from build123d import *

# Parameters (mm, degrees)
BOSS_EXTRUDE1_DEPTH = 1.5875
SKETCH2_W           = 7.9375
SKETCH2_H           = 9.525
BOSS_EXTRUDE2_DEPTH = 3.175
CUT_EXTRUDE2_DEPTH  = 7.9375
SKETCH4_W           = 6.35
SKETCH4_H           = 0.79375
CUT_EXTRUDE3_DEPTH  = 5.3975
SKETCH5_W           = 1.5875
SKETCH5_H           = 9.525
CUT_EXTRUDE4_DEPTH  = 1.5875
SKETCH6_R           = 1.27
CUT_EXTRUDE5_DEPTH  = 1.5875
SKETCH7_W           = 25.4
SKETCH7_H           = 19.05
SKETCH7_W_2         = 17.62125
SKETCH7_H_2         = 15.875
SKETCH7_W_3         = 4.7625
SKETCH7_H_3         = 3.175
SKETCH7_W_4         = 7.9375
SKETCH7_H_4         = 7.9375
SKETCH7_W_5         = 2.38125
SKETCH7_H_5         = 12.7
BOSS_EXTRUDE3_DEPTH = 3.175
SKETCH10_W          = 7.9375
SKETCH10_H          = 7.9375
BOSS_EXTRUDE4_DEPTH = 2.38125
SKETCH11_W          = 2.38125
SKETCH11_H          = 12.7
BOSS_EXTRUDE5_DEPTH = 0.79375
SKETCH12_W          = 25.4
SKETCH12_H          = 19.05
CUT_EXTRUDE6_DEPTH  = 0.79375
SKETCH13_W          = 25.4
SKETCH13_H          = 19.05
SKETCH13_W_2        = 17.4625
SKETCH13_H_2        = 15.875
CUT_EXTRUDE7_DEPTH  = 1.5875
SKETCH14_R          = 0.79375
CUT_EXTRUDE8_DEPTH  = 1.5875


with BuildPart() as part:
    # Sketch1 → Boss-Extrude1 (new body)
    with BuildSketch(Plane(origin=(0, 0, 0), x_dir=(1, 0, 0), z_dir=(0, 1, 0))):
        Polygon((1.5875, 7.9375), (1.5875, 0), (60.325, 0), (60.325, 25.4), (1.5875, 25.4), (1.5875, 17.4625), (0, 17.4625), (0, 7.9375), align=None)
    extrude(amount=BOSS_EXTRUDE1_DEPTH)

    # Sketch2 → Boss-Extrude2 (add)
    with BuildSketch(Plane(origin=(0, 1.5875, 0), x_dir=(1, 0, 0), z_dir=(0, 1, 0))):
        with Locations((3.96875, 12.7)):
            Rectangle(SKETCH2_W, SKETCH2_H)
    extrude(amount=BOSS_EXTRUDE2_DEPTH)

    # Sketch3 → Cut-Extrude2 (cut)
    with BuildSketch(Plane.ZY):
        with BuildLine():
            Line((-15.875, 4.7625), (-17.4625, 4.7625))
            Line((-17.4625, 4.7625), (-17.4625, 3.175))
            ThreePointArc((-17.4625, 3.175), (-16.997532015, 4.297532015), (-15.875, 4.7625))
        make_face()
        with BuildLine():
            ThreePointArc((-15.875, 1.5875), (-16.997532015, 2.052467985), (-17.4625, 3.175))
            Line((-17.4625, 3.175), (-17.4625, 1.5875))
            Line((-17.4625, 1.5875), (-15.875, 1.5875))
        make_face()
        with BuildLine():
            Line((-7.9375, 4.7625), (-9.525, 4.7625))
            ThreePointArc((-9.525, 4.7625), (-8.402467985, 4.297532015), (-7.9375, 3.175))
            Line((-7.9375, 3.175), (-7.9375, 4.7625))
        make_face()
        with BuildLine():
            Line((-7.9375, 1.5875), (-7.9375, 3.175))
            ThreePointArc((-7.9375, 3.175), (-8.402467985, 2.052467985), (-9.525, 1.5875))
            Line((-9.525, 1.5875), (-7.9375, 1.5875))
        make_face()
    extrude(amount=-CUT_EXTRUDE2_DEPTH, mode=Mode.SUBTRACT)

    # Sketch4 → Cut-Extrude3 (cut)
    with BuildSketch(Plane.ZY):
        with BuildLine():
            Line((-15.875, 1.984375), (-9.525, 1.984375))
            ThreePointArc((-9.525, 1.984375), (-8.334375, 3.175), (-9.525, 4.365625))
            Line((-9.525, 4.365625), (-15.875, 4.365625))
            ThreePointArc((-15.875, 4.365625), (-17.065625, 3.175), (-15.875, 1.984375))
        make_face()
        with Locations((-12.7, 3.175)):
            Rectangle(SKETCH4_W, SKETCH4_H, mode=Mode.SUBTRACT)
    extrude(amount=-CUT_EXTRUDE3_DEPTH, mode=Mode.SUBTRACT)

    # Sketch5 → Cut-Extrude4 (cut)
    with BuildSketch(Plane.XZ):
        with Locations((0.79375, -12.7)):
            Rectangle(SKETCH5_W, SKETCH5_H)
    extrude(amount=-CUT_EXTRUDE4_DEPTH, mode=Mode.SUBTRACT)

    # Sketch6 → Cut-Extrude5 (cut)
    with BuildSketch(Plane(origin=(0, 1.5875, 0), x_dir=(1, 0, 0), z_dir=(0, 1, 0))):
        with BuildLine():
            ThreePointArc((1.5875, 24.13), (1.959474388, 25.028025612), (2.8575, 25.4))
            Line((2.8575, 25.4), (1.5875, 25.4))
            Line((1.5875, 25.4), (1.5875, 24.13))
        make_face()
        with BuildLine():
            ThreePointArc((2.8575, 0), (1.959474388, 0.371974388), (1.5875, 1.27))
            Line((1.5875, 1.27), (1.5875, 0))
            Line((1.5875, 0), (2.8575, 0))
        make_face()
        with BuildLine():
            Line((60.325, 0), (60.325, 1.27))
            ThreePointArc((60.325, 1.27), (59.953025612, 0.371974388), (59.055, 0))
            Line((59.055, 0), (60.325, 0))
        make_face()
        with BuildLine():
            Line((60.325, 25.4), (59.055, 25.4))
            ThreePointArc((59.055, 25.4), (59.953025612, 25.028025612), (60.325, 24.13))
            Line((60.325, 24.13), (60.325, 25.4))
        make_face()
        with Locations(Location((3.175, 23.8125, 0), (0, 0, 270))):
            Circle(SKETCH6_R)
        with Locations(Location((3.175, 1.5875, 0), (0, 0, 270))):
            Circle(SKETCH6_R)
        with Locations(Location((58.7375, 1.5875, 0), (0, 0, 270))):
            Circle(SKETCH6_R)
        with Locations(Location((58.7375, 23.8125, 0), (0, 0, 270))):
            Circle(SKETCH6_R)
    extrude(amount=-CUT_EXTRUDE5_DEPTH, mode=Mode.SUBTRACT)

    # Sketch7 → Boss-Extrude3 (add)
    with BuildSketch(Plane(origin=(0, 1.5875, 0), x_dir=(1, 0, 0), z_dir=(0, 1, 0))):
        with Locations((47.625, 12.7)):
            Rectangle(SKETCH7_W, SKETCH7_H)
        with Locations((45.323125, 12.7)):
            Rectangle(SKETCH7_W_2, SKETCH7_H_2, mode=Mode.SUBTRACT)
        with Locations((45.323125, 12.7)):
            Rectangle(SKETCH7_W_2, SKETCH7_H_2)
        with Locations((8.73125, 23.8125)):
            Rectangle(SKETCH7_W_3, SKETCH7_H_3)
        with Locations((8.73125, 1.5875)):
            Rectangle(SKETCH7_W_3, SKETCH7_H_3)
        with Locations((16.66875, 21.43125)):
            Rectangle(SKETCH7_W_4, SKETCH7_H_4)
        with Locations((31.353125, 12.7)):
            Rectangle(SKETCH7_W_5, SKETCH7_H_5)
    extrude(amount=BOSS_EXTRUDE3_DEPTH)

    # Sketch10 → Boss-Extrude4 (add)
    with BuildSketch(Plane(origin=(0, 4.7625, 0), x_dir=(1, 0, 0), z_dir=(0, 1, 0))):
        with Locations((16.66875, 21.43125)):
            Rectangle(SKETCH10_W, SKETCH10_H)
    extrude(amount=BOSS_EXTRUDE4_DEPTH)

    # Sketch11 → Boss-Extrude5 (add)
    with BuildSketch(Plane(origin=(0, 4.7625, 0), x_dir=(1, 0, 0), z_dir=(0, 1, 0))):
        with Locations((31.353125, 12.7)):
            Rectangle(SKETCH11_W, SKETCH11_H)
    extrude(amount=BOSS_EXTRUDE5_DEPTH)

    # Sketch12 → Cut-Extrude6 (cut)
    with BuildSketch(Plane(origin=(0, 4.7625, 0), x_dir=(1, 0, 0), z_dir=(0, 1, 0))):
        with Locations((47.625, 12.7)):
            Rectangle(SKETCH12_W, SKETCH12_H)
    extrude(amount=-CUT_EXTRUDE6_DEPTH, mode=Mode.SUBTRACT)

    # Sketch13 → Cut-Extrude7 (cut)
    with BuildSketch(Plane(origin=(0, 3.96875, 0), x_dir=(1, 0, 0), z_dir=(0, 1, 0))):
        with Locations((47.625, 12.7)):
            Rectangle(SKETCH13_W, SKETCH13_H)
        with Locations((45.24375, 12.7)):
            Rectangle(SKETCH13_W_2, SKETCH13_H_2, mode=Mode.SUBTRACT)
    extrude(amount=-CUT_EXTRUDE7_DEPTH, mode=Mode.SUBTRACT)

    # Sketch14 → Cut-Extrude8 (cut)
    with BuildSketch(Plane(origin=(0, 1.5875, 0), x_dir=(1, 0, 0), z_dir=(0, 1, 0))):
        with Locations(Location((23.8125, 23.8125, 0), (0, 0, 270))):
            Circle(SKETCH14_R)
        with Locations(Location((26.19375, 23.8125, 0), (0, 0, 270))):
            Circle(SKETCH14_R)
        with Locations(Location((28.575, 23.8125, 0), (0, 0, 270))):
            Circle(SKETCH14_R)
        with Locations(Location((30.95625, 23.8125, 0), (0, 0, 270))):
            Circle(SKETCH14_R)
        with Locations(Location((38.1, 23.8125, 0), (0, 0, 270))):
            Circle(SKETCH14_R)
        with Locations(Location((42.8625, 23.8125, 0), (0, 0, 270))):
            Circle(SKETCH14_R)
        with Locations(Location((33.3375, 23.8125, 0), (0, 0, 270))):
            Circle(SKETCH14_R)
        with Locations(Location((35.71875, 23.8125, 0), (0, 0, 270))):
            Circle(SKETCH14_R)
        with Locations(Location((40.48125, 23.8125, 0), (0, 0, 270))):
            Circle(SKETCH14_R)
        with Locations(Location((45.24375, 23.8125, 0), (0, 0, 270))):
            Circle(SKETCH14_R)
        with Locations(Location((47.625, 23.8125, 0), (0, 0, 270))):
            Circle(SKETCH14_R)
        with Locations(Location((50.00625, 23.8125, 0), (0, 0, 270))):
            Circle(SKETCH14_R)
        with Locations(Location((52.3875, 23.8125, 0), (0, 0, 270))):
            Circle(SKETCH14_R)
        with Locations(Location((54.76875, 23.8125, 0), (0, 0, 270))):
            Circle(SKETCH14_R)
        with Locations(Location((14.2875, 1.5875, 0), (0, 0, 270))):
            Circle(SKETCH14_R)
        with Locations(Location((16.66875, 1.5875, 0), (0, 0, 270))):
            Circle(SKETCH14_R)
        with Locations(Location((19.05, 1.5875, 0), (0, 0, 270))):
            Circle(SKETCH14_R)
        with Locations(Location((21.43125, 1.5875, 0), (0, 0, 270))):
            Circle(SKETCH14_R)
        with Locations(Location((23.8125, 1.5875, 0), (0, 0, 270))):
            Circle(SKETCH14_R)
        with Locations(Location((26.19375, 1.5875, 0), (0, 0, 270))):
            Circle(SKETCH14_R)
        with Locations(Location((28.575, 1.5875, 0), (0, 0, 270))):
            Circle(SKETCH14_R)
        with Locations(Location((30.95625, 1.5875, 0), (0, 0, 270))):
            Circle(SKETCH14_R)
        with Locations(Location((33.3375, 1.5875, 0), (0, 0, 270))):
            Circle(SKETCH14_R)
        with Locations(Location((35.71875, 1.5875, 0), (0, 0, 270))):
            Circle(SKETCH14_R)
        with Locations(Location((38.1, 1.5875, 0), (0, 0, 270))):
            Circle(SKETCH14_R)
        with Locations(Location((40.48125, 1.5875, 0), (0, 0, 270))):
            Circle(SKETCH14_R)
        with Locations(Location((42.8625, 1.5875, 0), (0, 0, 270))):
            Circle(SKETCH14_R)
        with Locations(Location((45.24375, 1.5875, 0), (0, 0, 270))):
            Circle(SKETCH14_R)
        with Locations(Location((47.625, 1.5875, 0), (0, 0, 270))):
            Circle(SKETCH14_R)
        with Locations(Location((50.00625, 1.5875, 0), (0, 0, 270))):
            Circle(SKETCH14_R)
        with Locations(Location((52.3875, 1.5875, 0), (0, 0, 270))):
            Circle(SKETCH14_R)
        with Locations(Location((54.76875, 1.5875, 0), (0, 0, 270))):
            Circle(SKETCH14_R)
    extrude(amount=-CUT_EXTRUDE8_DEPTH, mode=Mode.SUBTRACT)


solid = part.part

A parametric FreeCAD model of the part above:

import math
import FreeCAD as App
import Part
import Sketcher
Q = App.Units.Quantity

doc = App.newDocument("Part")
body = doc.addObject("PartDesign::Body", "Body")

sketch1 = body.newObject("Sketcher::SketchObject", "Sketch")
sketch1.AttachmentSupport = (doc.getObject("XZ_Plane"), [""])
sketch1.MapMode = "FlatFace"
sketch1.addGeometry([
    Part.LineSegment(App.Vector(1.6, -7.9, 0), App.Vector(1.6, 0, 0)),
    Part.LineSegment(App.Vector(1.6, 0, 0), App.Vector(60.3, 0, 0)),
    Part.LineSegment(App.Vector(60.3, 0, 0), App.Vector(60.3, -25.4, 0)),
    Part.LineSegment(App.Vector(60.3, -25.4, 0), App.Vector(1.6, -25.4, 0)),
    Part.LineSegment(App.Vector(1.6, -25.4, 0), App.Vector(1.6, -17.5, 0)),
    Part.LineSegment(App.Vector(1.6, -17.5, 0), App.Vector(0, -17.5, 0)),
    Part.LineSegment(App.Vector(0, -17.5, 0), App.Vector(0, -7.9, 0)),
    Part.LineSegment(App.Vector(0, -7.9, 0), App.Vector(1.6, -7.9, 0)),
], False)
sketch1.addConstraint([
    Sketcher.Constraint("Coincident", 0, 2, 1, 1),
    Sketcher.Constraint("Coincident", 1, 2, 2, 1),
    Sketcher.Constraint("Coincident", 2, 2, 3, 1),
    Sketcher.Constraint("Coincident", 3, 2, 4, 1),
    Sketcher.Constraint("Coincident", 4, 2, 5, 1),
    Sketcher.Constraint("Coincident", 5, 2, 6, 1),
    Sketcher.Constraint("Coincident", 6, 2, 7, 1),
    Sketcher.Constraint("Coincident", 7, 2, 0, 1),
    Sketcher.Constraint("Vertical", 0),
    Sketcher.Constraint("Horizontal", 1),
    Sketcher.Constraint("Vertical", 2),
    Sketcher.Constraint("Horizontal", 3),
    Sketcher.Constraint("Vertical", 4),
    Sketcher.Constraint("Horizontal", 5),
    Sketcher.Constraint("Vertical", 6),
    Sketcher.Constraint("Horizontal", 7),
    Sketcher.Constraint("PointOnObject", 0, 2, -1),
    Sketcher.Constraint("PointOnObject", 5, 2, -2),
    Sketcher.Constraint("Vertical", 0, 2, 3, 2),
    Sketcher.Constraint("Equal", 0, 4),
    Sketcher.Constraint("DistanceY", 2, 2, 2, 1, Q("1 in")),
    Sketcher.Constraint("DistanceX", 1, 1, 1, 2, Q("2.3125 in")),
    Sketcher.Constraint("DistanceX", 5, 2, 5, 1, Q("0.0625 in")),
    Sketcher.Constraint("DistanceY", 0, 1, 0, 2, Q("0.3125 in")),
])
pad1 = body.newObject("PartDesign::Pad", "Pad")
pad1.Profile = sketch1
pad1.Length = Q("0.0625 in")
pad1.Reversed = True

sketch2 = body.newObject("Sketcher::SketchObject", "Sketch001")
sketch2.AttachmentSupport = (doc.getObject("XZ_Plane"), [""])
sketch2.MapMode = "FlatFace"
sketch2.AttachmentOffset = App.Placement(App.Vector(0, 0, -0.0625 * 25.4), App.Rotation())
sketch2.addGeometry([
    Part.LineSegment(App.Vector(0, -17, 0), App.Vector(0, -8, 0)),
    Part.LineSegment(App.Vector(0, -8, 0), App.Vector(8, -8, 0)),
    Part.LineSegment(App.Vector(8, -8, 0), App.Vector(8, -17, 0)),
    Part.LineSegment(App.Vector(8, -17, 0), App.Vector(0, -17, 0)),
], False)
sketch2.addConstraint([
    Sketcher.Constraint("Coincident", 0, 2, 1, 1),
    Sketcher.Constraint("Coincident", 1, 2, 2, 1),
    Sketcher.Constraint("Coincident", 2, 2, 3, 1),
    Sketcher.Constraint("Coincident", 3, 2, 0, 1),
    Sketcher.Constraint("Vertical", 0),
    Sketcher.Constraint("Horizontal", 1),
    Sketcher.Constraint("Vertical", 2),
    Sketcher.Constraint("Horizontal", 3),
    Sketcher.Constraint("PointOnObject", 0, 2, -2),
    Sketcher.Constraint("DistanceX", 1, 1, 1, 2, Q("0.3125 in")),
    Sketcher.Constraint("DistanceY", 0, 1, 0, 2, Q("0.375 in")),
    Sketcher.Constraint("DistanceY", 0, 2, -1, 1, Q("0.3125 in")),
])
pad2 = body.newObject("PartDesign::Pad", "Pad001")
pad2.Profile = sketch2
pad2.Length = Q("0.125 in")
pad2.Reversed = True

sketch3 = body.newObject("Sketcher::SketchObject", "Sketch002")
sketch3.AttachmentSupport = (doc.getObject("YZ_Plane"), [""])
sketch3.MapMode = "FlatFace"
sketch3.addGeometry([
    Part.LineSegment(App.Vector(4.8, -15.9, 0), App.Vector(4.8, -17.5, 0)),
    Part.LineSegment(App.Vector(4.8, -17.5, 0), App.Vector(3.2, -17.5, 0)),
    Part.ArcOfCircle(Part.Circle(App.Vector(3.2, -15.9, 0), App.Vector(0, 0, 1), 1.6), math.radians(-90), math.radians(0)),
    Part.ArcOfCircle(Part.Circle(App.Vector(3.2, -15.9, 0), App.Vector(0, 0, 1), 1.6), math.radians(180), math.radians(270)),
    Part.LineSegment(App.Vector(3.2, -17.5, 0), App.Vector(1.6, -17.5, 0)),
    Part.LineSegment(App.Vector(1.6, -17.5, 0), App.Vector(1.6, -15.9, 0)),
    Part.LineSegment(App.Vector(4.8, -7.9, 0), App.Vector(4.8, -9.5, 0)),
    Part.ArcOfCircle(Part.Circle(App.Vector(3.2, -9.5, 0), App.Vector(0, 0, 1), 1.6), math.radians(0), math.radians(90)),
    Part.LineSegment(App.Vector(3.2, -7.9, 0), App.Vector(4.8, -7.9, 0)),
    Part.LineSegment(App.Vector(1.6, -7.9, 0), App.Vector(3.2, -7.9, 0)),
    Part.ArcOfCircle(Part.Circle(App.Vector(3.2, -9.5, 0), App.Vector(0, 0, 1), 1.6), math.radians(90), math.radians(180)),
    Part.LineSegment(App.Vector(1.6, -9.5, 0), App.Vector(1.6, -7.9, 0)),
], False)
sketch3.addConstraint([
    Sketcher.Constraint("Coincident", 0, 2, 1, 1),
    Sketcher.Constraint("Tangent", 1, 2, 2, 1),
    Sketcher.Constraint("Tangent", 2, 2, 0, 1),
    Sketcher.Constraint("Tangent", 3, 2, 4, 1),
    Sketcher.Constraint("Coincident", 4, 2, 5, 1),
    Sketcher.Constraint("Tangent", 5, 2, 3, 1),
    Sketcher.Constraint("Tangent", 6, 2, 7, 1),
    Sketcher.Constraint("Tangent", 7, 2, 8, 1),
    Sketcher.Constraint("Coincident", 8, 2, 6, 1),
    Sketcher.Constraint("Tangent", 9, 2, 10, 1),
    Sketcher.Constraint("Tangent", 10, 2, 11, 1),
    Sketcher.Constraint("Coincident", 11, 2, 9, 1),
    Sketcher.Constraint("Vertical", 0),
    Sketcher.Constraint("Horizontal", 1),
    Sketcher.Constraint("Horizontal", 4),
    Sketcher.Constraint("Vertical", 5),
    Sketcher.Constraint("Vertical", 6),
    Sketcher.Constraint("Horizontal", 8),
    Sketcher.Constraint("Horizontal", 9),
    Sketcher.Constraint("Vertical", 11),
    Sketcher.Constraint("Coincident", 3, 3, 2, 3),
    Sketcher.Constraint("Coincident", 10, 3, 7, 3),
    Sketcher.Constraint("Equal", 2, 3),
    Sketcher.Constraint("Equal", 3, 7),
    Sketcher.Constraint("Equal", 7, 10),
    Sketcher.Constraint("Vertical", 3, 3, 7, 3),
    Sketcher.Constraint("Radius", 2, Q("0.0625 in")),
    Sketcher.Constraint("DistanceY", 2, 3, 7, 3, Q("0.25 in")),
    Sketcher.Constraint("DistanceX", -1, 1, 2, 3, Q("0.125 in")),
    Sketcher.Constraint("DistanceY", 2, 3, -1, 1, Q("0.625 in")),
])
pocket1 = body.newObject("PartDesign::Pocket", "Pocket")
pocket1.Profile = sketch3
pocket1.Length = Q("0.3125 in")
pocket1.Reversed = True

sketch4 = body.newObject("Sketcher::SketchObject", "Sketch003")
sketch4.AttachmentSupport = (doc.getObject("YZ_Plane"), [""])
sketch4.MapMode = "FlatFace"
sketch4.addGeometry([
    Part.LineSegment(App.Vector(2, -15.9, 0), App.Vector(2, -9.5, 0)),
    Part.ArcOfCircle(Part.Circle(App.Vector(3.2, -9.5, 0), App.Vector(0, 0, 1), 1.2), math.radians(0), math.radians(180)),
    Part.LineSegment(App.Vector(4.4, -9.5, 0), App.Vector(4.4, -15.9, 0)),
    Part.ArcOfCircle(Part.Circle(App.Vector(3.2, -15.9, 0), App.Vector(0, 0, 1), 1.2), math.radians(180), math.radians(360)),
    Part.LineSegment(App.Vector(2.8, -9.5, 0), App.Vector(2.8, -15.9, 0)),
    Part.LineSegment(App.Vector(2.8, -15.9, 0), App.Vector(3.6, -15.9, 0)),
    Part.LineSegment(App.Vector(3.6, -15.9, 0), App.Vector(3.6, -9.5, 0)),
    Part.LineSegment(App.Vector(3.6, -9.5, 0), App.Vector(2.8, -9.5, 0)),
], False)
sketch4.addConstraint([
    Sketcher.Constraint("Tangent", 0, 2, 1, 2),
    Sketcher.Constraint("Tangent", 1, 1, 2, 1),
    Sketcher.Constraint("Tangent", 2, 2, 3, 2),
    Sketcher.Constraint("Tangent", 3, 1, 0, 1),
    Sketcher.Constraint("Coincident", 4, 2, 5, 1),
    Sketcher.Constraint("Coincident", 5, 2, 6, 1),
    Sketcher.Constraint("Coincident", 6, 2, 7, 1),
    Sketcher.Constraint("Coincident", 7, 2, 4, 1),
    Sketcher.Constraint("Vertical", 0),
    Sketcher.Constraint("Vertical", 2),
    Sketcher.Constraint("Vertical", 4),
    Sketcher.Constraint("Horizontal", 5),
    Sketcher.Constraint("Vertical", 6),
    Sketcher.Constraint("Horizontal", 7),
    Sketcher.Constraint("Horizontal", 3, 1, 4, 2),
    Sketcher.Constraint("Horizontal", 1, 1, 6, 2),
    Sketcher.Constraint("Radius", 1, Q("0.046875 in")),
    Sketcher.Constraint("DistanceY", 0, 1, 0, 2, Q("0.25 in")),
    Sketcher.Constraint("DistanceX", 5, 1, 5, 2, Q("0.03125 in")),
    Sketcher.Constraint("DistanceX", -1, 1, 1, 3, Q("0.125 in")),
    Sketcher.Constraint("DistanceY", 1, 3, -1, 1, Q("0.375 in")),
    Sketcher.Constraint("DistanceX", -1, 1, 4, 2, Q("0.109375 in")),
])
pocket2 = body.newObject("PartDesign::Pocket", "Pocket001")
pocket2.Profile = sketch4
pocket2.Length = Q("0.2125 in")
pocket2.Reversed = True

sketch5 = body.newObject("Sketcher::SketchObject", "Sketch004")
sketch5.AttachmentSupport = (doc.getObject("XZ_Plane"), [""])
sketch5.MapMode = "FlatFace"
sketch5.addGeometry([
    Part.LineSegment(App.Vector(0, -7.9, 0), App.Vector(0, -17.5, 0)),
    Part.LineSegment(App.Vector(0, -17.5, 0), App.Vector(1.6, -17.5, 0)),
    Part.LineSegment(App.Vector(1.6, -17.5, 0), App.Vector(1.6, -7.9, 0)),
    Part.LineSegment(App.Vector(1.6, -7.9, 0), App.Vector(0, -7.9, 0)),
], False)
sketch5.addConstraint([
    Sketcher.Constraint("Coincident", 0, 2, 1, 1),
    Sketcher.Constraint("Coincident", 1, 2, 2, 1),
    Sketcher.Constraint("Coincident", 2, 2, 3, 1),
    Sketcher.Constraint("Coincident", 3, 2, 0, 1),
    Sketcher.Constraint("Vertical", 0),
    Sketcher.Constraint("Horizontal", 1),
    Sketcher.Constraint("Vertical", 2),
    Sketcher.Constraint("Horizontal", 3),
    Sketcher.Constraint("PointOnObject", 0, 2, -2),
    Sketcher.Constraint("DistanceX", 1, 1, 1, 2, Q("0.0625 in")),
    Sketcher.Constraint("DistanceY", 0, 2, 0, 1, Q("0.375 in")),
    Sketcher.Constraint("DistanceY", 0, 2, -1, 1, Q("0.6875 in")),
])
pocket3 = body.newObject("PartDesign::Pocket", "Pocket002")
pocket3.Profile = sketch5
pocket3.Length = Q("0.0625 in")

sketch6 = body.newObject("Sketcher::SketchObject", "Sketch005")
sketch6.AttachmentSupport = (doc.getObject("XZ_Plane"), [""])
sketch6.MapMode = "FlatFace"
sketch6.AttachmentOffset = App.Placement(App.Vector(0, 0, -0.0625 * 25.4), App.Rotation())
sketch6.addGeometry([
    Part.ArcOfCircle(Part.Circle(App.Vector(2.9, -24.1, 0), App.Vector(0, 0, 1), 1.3), math.radians(180), math.radians(270)),
    Part.LineSegment(App.Vector(2.9, -25.4, 0), App.Vector(1.6, -25.4, 0)),
    Part.LineSegment(App.Vector(1.6, -25.4, 0), App.Vector(1.6, -24.1, 0)),
    Part.ArcOfCircle(Part.Circle(App.Vector(2.9, -1.3, 0), App.Vector(0, 0, 1), 1.3), math.radians(90), math.radians(180)),
    Part.LineSegment(App.Vector(1.6, -1.3, 0), App.Vector(1.6, 0, 0)),
    Part.LineSegment(App.Vector(1.6, 0, 0), App.Vector(2.9, 0, 0)),
    Part.LineSegment(App.Vector(60.3, 0, 0), App.Vector(60.3, -1.3, 0)),
    Part.ArcOfCircle(Part.Circle(App.Vector(59.1, -1.3, 0), App.Vector(0, 0, 1), 1.3), math.radians(0), math.radians(90)),
    Part.LineSegment(App.Vector(59.1, 0, 0), App.Vector(60.3, 0, 0)),
    Part.LineSegment(App.Vector(60.3, -25.4, 0), App.Vector(59.1, -25.4, 0)),
    Part.ArcOfCircle(Part.Circle(App.Vector(59.1, -24.1, 0), App.Vector(0, 0, 1), 1.3), math.radians(-90), math.radians(0)),
    Part.LineSegment(App.Vector(60.3, -24.1, 0), App.Vector(60.3, -25.4, 0)),
    Part.Circle(App.Vector(3.2, -23.8, 0), App.Vector(0, 0, 1), 1.3),
    Part.Circle(App.Vector(3.2, -1.6, 0), App.Vector(0, 0, 1), 1.3),
    Part.Circle(App.Vector(58.7, -1.6, 0), App.Vector(0, 0, 1), 1.3),
    Part.Circle(App.Vector(58.7, -23.8, 0), App.Vector(0, 0, 1), 1.3),
], False)
sketch6.addConstraint([
    Sketcher.Constraint("Tangent", 0, 2, 1, 1),
    Sketcher.Constraint("Coincident", 1, 2, 2, 1),
    Sketcher.Constraint("Tangent", 2, 2, 0, 1),
    Sketcher.Constraint("Tangent", 3, 2, 4, 1),
    Sketcher.Constraint("Coincident", 4, 2, 5, 1),
    Sketcher.Constraint("Tangent", 5, 2, 3, 1),
    Sketcher.Constraint("Tangent", 6, 2, 7, 1),
    Sketcher.Constraint("Tangent", 7, 2, 8, 1),
    Sketcher.Constraint("Coincident", 8, 2, 6, 1),
    Sketcher.Constraint("Tangent", 9, 2, 10, 1),
    Sketcher.Constraint("Tangent", 10, 2, 11, 1),
    Sketcher.Constraint("Coincident", 11, 2, 9, 1),
    Sketcher.Constraint("Horizontal", 1),
    Sketcher.Constraint("Vertical", 2),
    Sketcher.Constraint("Vertical", 4),
    Sketcher.Constraint("Horizontal", 5),
    Sketcher.Constraint("Vertical", 6),
    Sketcher.Constraint("Horizontal", 8),
    Sketcher.Constraint("Horizontal", 9),
    Sketcher.Constraint("Vertical", 11),
    Sketcher.Constraint("Equal", 0, 3),
    Sketcher.Constraint("Equal", 3, 7),
    Sketcher.Constraint("Equal", 7, 10),
    Sketcher.Constraint("Equal", 10, 12),
    Sketcher.Constraint("Equal", 12, 13),
    Sketcher.Constraint("Equal", 13, 14),
    Sketcher.Constraint("Equal", 14, 15),
    Sketcher.Constraint("PointOnObject", 4, 2, -1),
    Sketcher.Constraint("PointOnObject", 7, 2, -1),
    Sketcher.Constraint("Horizontal", 0, 3, 10, 3),
    Sketcher.Constraint("Horizontal", 13, 3, 14, 3),
    Sketcher.Constraint("Horizontal", 12, 3, 15, 3),
    Sketcher.Constraint("Vertical", 0, 3, 3, 3),
    Sketcher.Constraint("Vertical", 7, 3, 10, 3),
    Sketcher.Constraint("Vertical", 12, 3, 13, 3),
    Sketcher.Constraint("Vertical", 14, 3, 15, 3),
    Sketcher.Constraint("Diameter", 12, Q("0.1 in")),
    Sketcher.Constraint("DistanceY", 0, 2, -1, 1, Q("1 in")),
    Sketcher.Constraint("DistanceX", 12, 3, 10, 3, Q("2.2 in")),
    Sketcher.Constraint("DistanceX", 3, 3, 14, 3, Q("2.2 in")),
    Sketcher.Constraint("DistanceX", -1, 1, 7, 3, Q("2.325 in")),
    Sketcher.Constraint("DistanceY", 12, 3, -1, 1, Q("0.9375 in")),
    Sketcher.Constraint("DistanceY", 13, 3, -1, 1, Q("0.0625 in")),
    Sketcher.Constraint("DistanceX", -1, 1, 14, 3, Q("2.3125 in")),
])
pocket4 = body.newObject("PartDesign::Pocket", "Pocket003")
pocket4.Profile = sketch6
pocket4.Length = Q("0.0625 in")
pocket4.Reversed = True

sketch7 = body.newObject("Sketcher::SketchObject", "Sketch006")
sketch7.AttachmentSupport = (doc.getObject("XZ_Plane"), [""])
sketch7.MapMode = "FlatFace"
sketch7.AttachmentOffset = App.Placement(App.Vector(0, 0, -0.0625 * 25.4), App.Rotation())
sketch7.addGeometry([
    Part.LineSegment(App.Vector(34.9, -22.2, 0), App.Vector(34.9, -3.2, 0)),
    Part.LineSegment(App.Vector(34.9, -3.2, 0), App.Vector(60.3, -3.2, 0)),
    Part.LineSegment(App.Vector(60.3, -3.2, 0), App.Vector(60.3, -22.2, 0)),
    Part.LineSegment(App.Vector(60.3, -22.2, 0), App.Vector(34.9, -22.2, 0)),
    Part.LineSegment(App.Vector(6.3, -25.4, 0), App.Vector(6.3, -22.2, 0)),
    Part.LineSegment(App.Vector(6.3, -22.2, 0), App.Vector(11.1, -22.2, 0)),
    Part.LineSegment(App.Vector(11.1, -22.2, 0), App.Vector(11.1, -25.4, 0)),
    Part.LineSegment(App.Vector(11.1, -25.4, 0), App.Vector(6.3, -25.4, 0)),
    Part.LineSegment(App.Vector(6.3, -3.2, 0), App.Vector(6.3, 0, 0)),
    Part.LineSegment(App.Vector(6.3, 0, 0), App.Vector(11.1, 0, 0)),
    Part.LineSegment(App.Vector(11.1, 0, 0), App.Vector(11.1, -3.2, 0)),
    Part.LineSegment(App.Vector(11.1, -3.2, 0), App.Vector(6.3, -3.2, 0)),
    Part.LineSegment(App.Vector(12.7, -25.4, 0), App.Vector(12.7, -17.5, 0)),
    Part.LineSegment(App.Vector(12.7, -17.5, 0), App.Vector(20.6, -17.5, 0)),
    Part.LineSegment(App.Vector(20.6, -17.5, 0), App.Vector(20.6, -25.4, 0)),
    Part.LineSegment(App.Vector(20.6, -25.4, 0), App.Vector(12.7, -25.4, 0)),
    Part.LineSegment(App.Vector(30.2, -19.1, 0), App.Vector(30.2, -6.3, 0)),
    Part.LineSegment(App.Vector(30.2, -6.3, 0), App.Vector(32.5, -6.3, 0)),
    Part.LineSegment(App.Vector(32.5, -6.3, 0), App.Vector(32.5, -19.1, 0)),
    Part.LineSegment(App.Vector(32.5, -19.1, 0), App.Vector(30.2, -19.1, 0)),
], False)
sketch7.addConstraint([
    Sketcher.Constraint("Coincident", 0, 2, 1, 1),
    Sketcher.Constraint("Coincident", 1, 2, 2, 1),
    Sketcher.Constraint("Coincident", 2, 2, 3, 1),
    Sketcher.Constraint("Coincident", 3, 2, 0, 1),
    Sketcher.Constraint("Coincident", 4, 2, 5, 1),
    Sketcher.Constraint("Coincident", 5, 2, 6, 1),
    Sketcher.Constraint("Coincident", 6, 2, 7, 1),
    Sketcher.Constraint("Coincident", 7, 2, 4, 1),
    Sketcher.Constraint("Coincident", 8, 2, 9, 1),
    Sketcher.Constraint("Coincident", 9, 2, 10, 1),
    Sketcher.Constraint("Coincident", 10, 2, 11, 1),
    Sketcher.Constraint("Coincident", 11, 2, 8, 1),
    Sketcher.Constraint("Coincident", 12, 2, 13, 1),
    Sketcher.Constraint("Coincident", 13, 2, 14, 1),
    Sketcher.Constraint("Coincident", 14, 2, 15, 1),
    Sketcher.Constraint("Coincident", 15, 2, 12, 1),
    Sketcher.Constraint("Coincident", 16, 2, 17, 1),
    Sketcher.Constraint("Coincident", 17, 2, 18, 1),
    Sketcher.Constraint("Coincident", 18, 2, 19, 1),
    Sketcher.Constraint("Coincident", 19, 2, 16, 1),
    Sketcher.Constraint("Vertical", 0),
    Sketcher.Constraint("Horizontal", 1),
    Sketcher.Constraint("Vertical", 2),
    Sketcher.Constraint("Horizontal", 3),
    Sketcher.Constraint("Vertical", 4),
    Sketcher.Constraint("Horizontal", 5),
    Sketcher.Constraint("Vertical", 6),
    Sketcher.Constraint("Horizontal", 7),
    Sketcher.Constraint("Vertical", 8),
    Sketcher.Constraint("Horizontal", 9),
    Sketcher.Constraint("Vertical", 10),
    Sketcher.Constraint("Horizontal", 11),
    Sketcher.Constraint("Vertical", 12),
    Sketcher.Constraint("Horizontal", 13),
    Sketcher.Constraint("Vertical", 14),
    Sketcher.Constraint("Horizontal", 15),
    Sketcher.Constraint("Vertical", 16),
    Sketcher.Constraint("Horizontal", 17),
    Sketcher.Constraint("Vertical", 18),
    Sketcher.Constraint("Horizontal", 19),
    Sketcher.Constraint("PointOnObject", 8, 2, -1),
    Sketcher.Constraint("Horizontal", 3, 2, 4, 2),
    Sketcher.Constraint("Horizontal", 1, 2, 10, 2),
    Sketcher.Constraint("Horizontal", 7, 2, 14, 2),
    Sketcher.Constraint("Vertical", 7, 2, 8, 2),
    Sketcher.Constraint("Vertical", 6, 2, 9, 2),
    Sketcher.Constraint("Equal", 6, 8),
    Sketcher.Constraint("Equal", 15, 12),
    Sketcher.Constraint("DistanceX", 1, 1, 1, 2, Q("1 in")),
    Sketcher.Constraint("DistanceY", 16, 1, 16, 2, Q("0.5 in")),
    Sketcher.Constraint("DistanceY", 6, 2, -1, 1, Q("1 in")),
    Sketcher.Constraint("DistanceY", 0, 1, 0, 2, Q("0.75 in")),
    Sketcher.Constraint("DistanceX", -1, 1, 12, 2, Q("0.5 in")),
    Sketcher.Constraint("DistanceX", 5, 1, 5, 2, Q("0.1875 in")),
    Sketcher.Constraint("DistanceX", 13, 1, 13, 2, Q("0.3125 in")),
    Sketcher.Constraint("DistanceX", 17, 1, 17, 2, Q("0.09375 in")),
    Sketcher.Constraint("DistanceX", -1, 1, 4, 2, Q("0.25 in")),
    Sketcher.Constraint("DistanceY", 16, 2, -1, 1, Q("0.25 in")),
    Sketcher.Constraint("DistanceX", 10, 2, 16, 2, Q("0.75 in")),
    Sketcher.Constraint("DistanceX", -1, 1, 0, 2, Q("1.375 in")),
])
pad3 = body.newObject("PartDesign::Pad", "Pad002")
pad3.Profile = sketch7
pad3.Length = Q("0.125 in")
pad3.Reversed = True

sketch8 = body.newObject("Sketcher::SketchObject", "Sketch007")
sketch8.AttachmentSupport = (doc.getObject("XZ_Plane"), [""])
sketch8.MapMode = "FlatFace"
sketch8.AttachmentOffset = App.Placement(App.Vector(0, 0, -0.1875 * 25.4), App.Rotation())
sketch8.addGeometry([
    Part.LineSegment(App.Vector(13, -25, 0), App.Vector(13, -17, 0)),
    Part.LineSegment(App.Vector(13, -17, 0), App.Vector(21, -17, 0)),
    Part.LineSegment(App.Vector(21, -17, 0), App.Vector(21, -25, 0)),
    Part.LineSegment(App.Vector(21, -25, 0), App.Vector(13, -25, 0)),
], False)
sketch8.addConstraint([
    Sketcher.Constraint("Coincident", 0, 2, 1, 1),
    Sketcher.Constraint("Coincident", 1, 2, 2, 1),
    Sketcher.Constraint("Coincident", 2, 2, 3, 1),
    Sketcher.Constraint("Coincident", 3, 2, 0, 1),
    Sketcher.Constraint("Vertical", 0),
    Sketcher.Constraint("Horizontal", 1),
    Sketcher.Constraint("Vertical", 2),
    Sketcher.Constraint("Horizontal", 3),
    Sketcher.Constraint("Equal", 3, 0),
    Sketcher.Constraint("DistanceY", 2, 2, -1, 1, Q("1 in")),
    Sketcher.Constraint("DistanceX", -1, 1, 0, 2, Q("0.5 in")),
    Sketcher.Constraint("DistanceX", 1, 1, 1, 2, Q("0.3125 in")),
])
pad4 = body.newObject("PartDesign::Pad", "Pad003")
pad4.Profile = sketch8
pad4.Length = Q("0.09375 in")
pad4.Reversed = True

sketch9 = body.newObject("Sketcher::SketchObject", "Sketch008")
sketch9.AttachmentSupport = (doc.getObject("XZ_Plane"), [""])
sketch9.MapMode = "FlatFace"
sketch9.AttachmentOffset = App.Placement(App.Vector(0, 0, -0.1875 * 25.4), App.Rotation())
sketch9.addGeometry([
    Part.LineSegment(App.Vector(30.2, -19.1, 0), App.Vector(30.2, -6.3, 0)),
    Part.LineSegment(App.Vector(30.2, -6.3, 0), App.Vector(32.5, -6.3, 0)),
    Part.LineSegment(App.Vector(32.5, -6.3, 0), App.Vector(32.5, -19.1, 0)),
    Part.LineSegment(App.Vector(32.5, -19.1, 0), App.Vector(30.2, -19.1, 0)),
], False)
sketch9.addConstraint([
    Sketcher.Constraint("Coincident", 0, 2, 1, 1),
    Sketcher.Constraint("Coincident", 1, 2, 2, 1),
    Sketcher.Constraint("Coincident", 2, 2, 3, 1),
    Sketcher.Constraint("Coincident", 3, 2, 0, 1),
    Sketcher.Constraint("Vertical", 0),
    Sketcher.Constraint("Horizontal", 1),
    Sketcher.Constraint("Vertical", 2),
    Sketcher.Constraint("Horizontal", 3),
    Sketcher.Constraint("DistanceY", 0, 1, 0, 2, Q("0.5 in")),
    Sketcher.Constraint("DistanceX", 1, 1, 1, 2, Q("0.09375 in")),
    Sketcher.Constraint("DistanceY", 0, 2, -1, 1, Q("0.25 in")),
    Sketcher.Constraint("DistanceX", -1, 1, 0, 2, Q("1.1875 in")),
])
pad5 = body.newObject("PartDesign::Pad", "Pad004")
pad5.Profile = sketch9
pad5.Length = Q("0.03125 in")
pad5.Reversed = True

sketch10 = body.newObject("Sketcher::SketchObject", "Sketch009")
sketch10.AttachmentSupport = (doc.getObject("XZ_Plane"), [""])
sketch10.MapMode = "FlatFace"
sketch10.AttachmentOffset = App.Placement(App.Vector(0, 0, -0.1875 * 25.4), App.Rotation())
sketch10.addGeometry([
    Part.LineSegment(App.Vector(35, -22, 0), App.Vector(35, -3, 0)),
    Part.LineSegment(App.Vector(35, -3, 0), App.Vector(60, -3, 0)),
    Part.LineSegment(App.Vector(60, -3, 0), App.Vector(60, -22, 0)),
    Part.LineSegment(App.Vector(60, -22, 0), App.Vector(35, -22, 0)),
], False)
sketch10.addConstraint([
    Sketcher.Constraint("Coincident", 0, 2, 1, 1),
    Sketcher.Constraint("Coincident", 1, 2, 2, 1),
    Sketcher.Constraint("Coincident", 2, 2, 3, 1),
    Sketcher.Constraint("Coincident", 3, 2, 0, 1),
    Sketcher.Constraint("Vertical", 0),
    Sketcher.Constraint("Horizontal", 1),
    Sketcher.Constraint("Vertical", 2),
    Sketcher.Constraint("Horizontal", 3),
    Sketcher.Constraint("DistanceX", 1, 1, 1, 2, Q("1 in")),
    Sketcher.Constraint("DistanceY", 0, 1, 0, 2, Q("0.75 in")),
    Sketcher.Constraint("DistanceX", -1, 1, 0, 2, Q("1.375 in")),
    Sketcher.Constraint("DistanceY", 0, 2, -1, 1, Q("0.125 in")),
])
pocket5 = body.newObject("PartDesign::Pocket", "Pocket004")
pocket5.Profile = sketch10
pocket5.Length = Q("0.03125 in")
pocket5.Reversed = True

sketch11 = body.newObject("Sketcher::SketchObject", "Sketch010")
sketch11.AttachmentSupport = (doc.getObject("XZ_Plane"), [""])
sketch11.MapMode = "FlatFace"
sketch11.AttachmentOffset = App.Placement(App.Vector(0, 0, -0.15625 * 25.4), App.Rotation())
sketch11.addGeometry([
    Part.LineSegment(App.Vector(35, -22, 0), App.Vector(35, -3, 0)),
    Part.LineSegment(App.Vector(35, -3, 0), App.Vector(60, -3, 0)),
    Part.LineSegment(App.Vector(60, -3, 0), App.Vector(60, -22, 0)),
    Part.LineSegment(App.Vector(60, -22, 0), App.Vector(35, -22, 0)),
    Part.LineSegment(App.Vector(54, -5, 0), App.Vector(37, -5, 0)),
    Part.LineSegment(App.Vector(37, -5, 0), App.Vector(37, -21, 0)),
    Part.LineSegment(App.Vector(37, -21, 0), App.Vector(54, -21, 0)),
    Part.LineSegment(App.Vector(54, -21, 0), App.Vector(54, -5, 0)),
], False)
sketch11.addConstraint([
    Sketcher.Constraint("Coincident", 0, 2, 1, 1),
    Sketcher.Constraint("Coincident", 1, 2, 2, 1),
    Sketcher.Constraint("Coincident", 2, 2, 3, 1),
    Sketcher.Constraint("Coincident", 3, 2, 0, 1),
    Sketcher.Constraint("Coincident", 4, 2, 5, 1),
    Sketcher.Constraint("Coincident", 5, 2, 6, 1),
    Sketcher.Constraint("Coincident", 6, 2, 7, 1),
    Sketcher.Constraint("Coincident", 7, 2, 4, 1),
    Sketcher.Constraint("Vertical", 0),
    Sketcher.Constraint("Horizontal", 1),
    Sketcher.Constraint("Vertical", 2),
    Sketcher.Constraint("Horizontal", 3),
    Sketcher.Constraint("Horizontal", 4),
    Sketcher.Constraint("Vertical", 5),
    Sketcher.Constraint("Horizontal", 6),
    Sketcher.Constraint("Vertical", 7),
    Sketcher.Constraint("DistanceX", 1, 1, 1, 2, Q("1 in")),
    Sketcher.Constraint("DistanceY", 0, 1, 0, 2, Q("0.75 in")),
    Sketcher.Constraint("DistanceX", 4, 2, 4, 1, Q("0.6875 in")),
    Sketcher.Constraint("DistanceY", 5, 2, 5, 1, Q("0.625 in")),
    Sketcher.Constraint("DistanceX", 6, 2, 2, 2, Q("0.25 in")),
    Sketcher.Constraint("DistanceX", -1, 1, 0, 2, Q("1.375 in")),
    Sketcher.Constraint("DistanceY", 0, 2, -1, 1, Q("0.125 in")),
    Sketcher.Constraint("DistanceY", 4, 2, -1, 1, Q("0.1875 in")),
])
pocket6 = body.newObject("PartDesign::Pocket", "Pocket005")
pocket6.Profile = sketch11
pocket6.Length = Q("0.0625 in")
pocket6.Reversed = True

sketch12 = body.newObject("Sketcher::SketchObject", "Sketch011")
sketch12.AttachmentSupport = (doc.getObject("XZ_Plane"), [""])
sketch12.MapMode = "FlatFace"
sketch12.AttachmentOffset = App.Placement(App.Vector(0, 0, -0.0625 * 25.4), App.Rotation())
sketch12.addGeometry([
    Part.Circle(App.Vector(23.8, -23.8, 0), App.Vector(0, 0, 1), 0.8),
    Part.Circle(App.Vector(26.2, -23.8, 0), App.Vector(0, 0, 1), 0.8),
    Part.Circle(App.Vector(28.6, -23.8, 0), App.Vector(0, 0, 1), 0.8),
    Part.Circle(App.Vector(31, -23.8, 0), App.Vector(0, 0, 1), 0.8),
    Part.Circle(App.Vector(38.1, -23.8, 0), App.Vector(0, 0, 1), 0.8),
    Part.Circle(App.Vector(42.9, -23.8, 0), App.Vector(0, 0, 1), 0.8),
    Part.Circle(App.Vector(33.3, -23.8, 0), App.Vector(0, 0, 1), 0.8),
    Part.Circle(App.Vector(35.7, -23.8, 0), App.Vector(0, 0, 1), 0.8),
    Part.Circle(App.Vector(40.5, -23.8, 0), App.Vector(0, 0, 1), 0.8),
    Part.Circle(App.Vector(45.2, -23.8, 0), App.Vector(0, 0, 1), 0.8),
    Part.Circle(App.Vector(47.6, -23.8, 0), App.Vector(0, 0, 1), 0.8),
    Part.Circle(App.Vector(50, -23.8, 0), App.Vector(0, 0, 1), 0.8),
    Part.Circle(App.Vector(52.4, -23.8, 0), App.Vector(0, 0, 1), 0.8),
    Part.Circle(App.Vector(54.8, -23.8, 0), App.Vector(0, 0, 1), 0.8),
    Part.Circle(App.Vector(14.3, -1.6, 0), App.Vector(0, 0, 1), 0.8),
    Part.Circle(App.Vector(16.7, -1.6, 0), App.Vector(0, 0, 1), 0.8),
    Part.Circle(App.Vector(19.1, -1.6, 0), App.Vector(0, 0, 1), 0.8),
    Part.Circle(App.Vector(21.4, -1.6, 0), App.Vector(0, 0, 1), 0.8),
    Part.Circle(App.Vector(23.8, -1.6, 0), App.Vector(0, 0, 1), 0.8),
    Part.Circle(App.Vector(26.2, -1.6, 0), App.Vector(0, 0, 1), 0.8),
    Part.Circle(App.Vector(28.6, -1.6, 0), App.Vector(0, 0, 1), 0.8),
    Part.Circle(App.Vector(31, -1.6, 0), App.Vector(0, 0, 1), 0.8),
    Part.Circle(App.Vector(33.3, -1.6, 0), App.Vector(0, 0, 1), 0.8),
    Part.Circle(App.Vector(35.7, -1.6, 0), App.Vector(0, 0, 1), 0.8),
    Part.Circle(App.Vector(38.1, -1.6, 0), App.Vector(0, 0, 1), 0.8),
    Part.Circle(App.Vector(40.5, -1.6, 0), App.Vector(0, 0, 1), 0.8),
    Part.Circle(App.Vector(42.9, -1.6, 0), App.Vector(0, 0, 1), 0.8),
    Part.Circle(App.Vector(45.2, -1.6, 0), App.Vector(0, 0, 1), 0.8),
    Part.Circle(App.Vector(47.6, -1.6, 0), App.Vector(0, 0, 1), 0.8),
    Part.Circle(App.Vector(50, -1.6, 0), App.Vector(0, 0, 1), 0.8),
    Part.Circle(App.Vector(52.4, -1.6, 0), App.Vector(0, 0, 1), 0.8),
    Part.Circle(App.Vector(54.8, -1.6, 0), App.Vector(0, 0, 1), 0.8),
], False)
sketch12.addConstraint([
    Sketcher.Constraint("Equal", 0, 1),
    Sketcher.Constraint("Equal", 1, 2),
    Sketcher.Constraint("Equal", 2, 3),
    Sketcher.Constraint("Equal", 3, 4),
    Sketcher.Constraint("Equal", 4, 5),
    Sketcher.Constraint("Equal", 5, 6),
    Sketcher.Constraint("Equal", 6, 7),
    Sketcher.Constraint("Equal", 7, 8),
    Sketcher.Constraint("Equal", 8, 9),
    Sketcher.Constraint("Equal", 9, 10),
    Sketcher.Constraint("Equal", 10, 11),
    Sketcher.Constraint("Equal", 11, 12),
    Sketcher.Constraint("Equal", 12, 13),
    Sketcher.Constraint("Equal", 13, 14),
    Sketcher.Constraint("Equal", 14, 15),
    Sketcher.Constraint("Equal", 15, 16),
    Sketcher.Constraint("Equal", 16, 17),
    Sketcher.Constraint("Equal", 17, 18),
    Sketcher.Constraint("Equal", 18, 19),
    Sketcher.Constraint("Equal", 19, 20),
    Sketcher.Constraint("Equal", 20, 21),
    Sketcher.Constraint("Equal", 21, 22),
    Sketcher.Constraint("Equal", 22, 23),
    Sketcher.Constraint("Equal", 23, 24),
    Sketcher.Constraint("Equal", 24, 25),
    Sketcher.Constraint("Equal", 25, 26),
    Sketcher.Constraint("Equal", 26, 27),
    Sketcher.Constraint("Equal", 27, 28),
    Sketcher.Constraint("Equal", 28, 29),
    Sketcher.Constraint("Equal", 29, 30),
    Sketcher.Constraint("Equal", 30, 31),
    Sketcher.Constraint("Horizontal", 0, 3, 1, 3),
    Sketcher.Constraint("Horizontal", 1, 3, 2, 3),
    Sketcher.Constraint("Horizontal", 2, 3, 3, 3),
    Sketcher.Constraint("Horizontal", 3, 3, 4, 3),
    Sketcher.Constraint("Horizontal", 4, 3, 5, 3),
    Sketcher.Constraint("Horizontal", 5, 3, 6, 3),
    Sketcher.Constraint("Horizontal", 6, 3, 7, 3),
    Sketcher.Constraint("Horizontal", 7, 3, 8, 3),
    Sketcher.Constraint("Horizontal", 8, 3, 9, 3),
    Sketcher.Constraint("Horizontal", 9, 3, 10, 3),
    Sketcher.Constraint("Horizontal", 10, 3, 11, 3),
    Sketcher.Constraint("Horizontal", 11, 3, 12, 3),
    Sketcher.Constraint("Horizontal", 12, 3, 13, 3),
    Sketcher.Constraint("Horizontal", 14, 3, 15, 3),
    Sketcher.Constraint("Horizontal", 15, 3, 16, 3),
    Sketcher.Constraint("Horizontal", 16, 3, 17, 3),
    Sketcher.Constraint("Horizontal", 17, 3, 18, 3),
    Sketcher.Constraint("Horizontal", 18, 3, 19, 3),
    Sketcher.Constraint("Horizontal", 19, 3, 20, 3),
    Sketcher.Constraint("Horizontal", 20, 3, 21, 3),
    Sketcher.Constraint("Horizontal", 21, 3, 22, 3),
    Sketcher.Constraint("Horizontal", 22, 3, 23, 3),
    Sketcher.Constraint("Horizontal", 23, 3, 24, 3),
    Sketcher.Constraint("Horizontal", 24, 3, 25, 3),
    Sketcher.Constraint("Horizontal", 25, 3, 26, 3),
    Sketcher.Constraint("Horizontal", 26, 3, 27, 3),
    Sketcher.Constraint("Horizontal", 27, 3, 28, 3),
    Sketcher.Constraint("Horizontal", 28, 3, 29, 3),
    Sketcher.Constraint("Horizontal", 29, 3, 30, 3),
    Sketcher.Constraint("Horizontal", 30, 3, 31, 3),
    Sketcher.Constraint("Vertical", 0, 3, 18, 3),
    Sketcher.Constraint("Vertical", 1, 3, 19, 3),
    Sketcher.Constraint("Vertical", 2, 3, 20, 3),
    Sketcher.Constraint("Vertical", 3, 3, 21, 3),
    Sketcher.Constraint("Vertical", 6, 3, 22, 3),
    Sketcher.Constraint("Vertical", 7, 3, 23, 3),
    Sketcher.Constraint("Vertical", 4, 3, 24, 3),
    Sketcher.Constraint("Vertical", 8, 3, 25, 3),
    Sketcher.Constraint("Vertical", 5, 3, 26, 3),
    Sketcher.Constraint("Vertical", 9, 3, 27, 3),
    Sketcher.Constraint("Vertical", 10, 3, 28, 3),
    Sketcher.Constraint("Vertical", 11, 3, 29, 3),
    Sketcher.Constraint("Vertical", 12, 3, 30, 3),
    Sketcher.Constraint("Vertical", 13, 3, 31, 3),
    Sketcher.Constraint("Diameter", 0, Q("0.0625 in")),
    Sketcher.Constraint("DistanceX", -1, 1, 4, 3, Q("1.5 in")),
    Sketcher.Constraint("DistanceX", -1, 1, 16, 3, Q("0.75 in")),
    Sketcher.Constraint("DistanceX", 0, 3, 5, 3, Q("0.75 in")),
    Sketcher.Constraint("DistanceX", 14, 3, 6, 3, Q("0.75 in")),
    Sketcher.Constraint("DistanceX", -1, 1, 0, 3, Q("0.9375 in")),
    Sketcher.Constraint("DistanceY", 0, 3, -1, 1, Q("0.9375 in")),
    Sketcher.Constraint("DistanceX", -1, 1, 1, 3, Q("1.03125 in")),
    Sketcher.Constraint("DistanceX", -1, 1, 2, 3, Q("1.125 in")),
    Sketcher.Constraint("DistanceX", -1, 1, 3, 3, Q("1.21875 in")),
    Sketcher.Constraint("DistanceX", -1, 1, 6, 3, Q("1.3125 in")),
    Sketcher.Constraint("DistanceX", -1, 1, 7, 3, Q("1.40625 in")),
    Sketcher.Constraint("DistanceX", -1, 1, 8, 3, Q("1.59375 in")),
    Sketcher.Constraint("DistanceX", -1, 1, 9, 3, Q("1.78125 in")),
    Sketcher.Constraint("DistanceX", -1, 1, 10, 3, Q("1.875 in")),
    Sketcher.Constraint("DistanceX", -1, 1, 11, 3, Q("1.96875 in")),
    Sketcher.Constraint("DistanceX", -1, 1, 12, 3, Q("2.0625 in")),
    Sketcher.Constraint("DistanceX", -1, 1, 13, 3, Q("2.15625 in")),
    Sketcher.Constraint("DistanceY", 14, 3, -1, 1, Q("0.0625 in")),
    Sketcher.Constraint("DistanceX", -1, 1, 15, 3, Q("0.65625 in")),
    Sketcher.Constraint("DistanceX", -1, 1, 17, 3, Q("0.84375 in")),
])
pocket7 = body.newObject("PartDesign::Pocket", "Pocket006")
pocket7.Profile = sketch12
pocket7.Length = Q("0.0625 in")
pocket7.Reversed = True

doc.recompute()
